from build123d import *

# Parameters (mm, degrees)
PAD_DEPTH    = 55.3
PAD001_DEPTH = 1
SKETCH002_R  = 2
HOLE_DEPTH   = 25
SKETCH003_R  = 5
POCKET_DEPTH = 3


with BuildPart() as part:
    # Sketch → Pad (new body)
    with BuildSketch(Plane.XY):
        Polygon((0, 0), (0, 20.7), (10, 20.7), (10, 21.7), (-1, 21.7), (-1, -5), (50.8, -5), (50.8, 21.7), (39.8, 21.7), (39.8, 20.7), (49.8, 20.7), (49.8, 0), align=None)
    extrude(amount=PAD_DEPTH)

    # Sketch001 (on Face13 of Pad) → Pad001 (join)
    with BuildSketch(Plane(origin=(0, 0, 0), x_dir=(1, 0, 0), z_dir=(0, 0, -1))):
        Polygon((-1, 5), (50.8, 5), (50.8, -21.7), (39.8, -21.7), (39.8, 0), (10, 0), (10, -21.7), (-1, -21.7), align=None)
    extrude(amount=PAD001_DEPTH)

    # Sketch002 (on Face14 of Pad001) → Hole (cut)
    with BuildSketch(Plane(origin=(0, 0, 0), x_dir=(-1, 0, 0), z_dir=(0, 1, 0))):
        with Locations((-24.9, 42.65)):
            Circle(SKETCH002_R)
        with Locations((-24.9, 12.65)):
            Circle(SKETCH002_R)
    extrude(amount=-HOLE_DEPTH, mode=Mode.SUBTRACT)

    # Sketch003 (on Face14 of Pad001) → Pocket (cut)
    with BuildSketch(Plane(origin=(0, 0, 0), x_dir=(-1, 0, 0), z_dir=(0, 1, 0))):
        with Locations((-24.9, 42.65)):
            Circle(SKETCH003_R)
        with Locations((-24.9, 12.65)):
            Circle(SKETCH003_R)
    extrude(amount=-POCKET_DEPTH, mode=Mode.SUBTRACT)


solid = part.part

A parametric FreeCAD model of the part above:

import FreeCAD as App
import Part
import Sketcher

doc = App.newDocument("Part")
body = doc.addObject("PartDesign::Body", "Body")

# Sketch on XY plane
sketch1 = body.newObject("Sketcher::SketchObject", "Sketch")
sketch1.AttachmentSupport = (doc.getObject("XY_Plane"), [""])
sketch1.MapMode = "FlatFace"
sketch1.addGeometry([
    Part.LineSegment(App.Vector(0, 0, 0), App.Vector(0, 20.7, 0)),  # 0
    Part.LineSegment(App.Vector(0, 20.7, 0), App.Vector(10, 20.7, 0)),  # 1
    Part.LineSegment(App.Vector(10, 20.7, 0), App.Vector(10, 21.7, 0)),  # 2
    Part.LineSegment(App.Vector(10, 21.7, 0), App.Vector(-1, 21.7, 0)),  # 3
    Part.LineSegment(App.Vector(-1, 21.7, 0), App.Vector(-1, -5, 0)),  # 4
    Part.LineSegment(App.Vector(-1, -5, 0), App.Vector(50.8, -5, 0)),  # 5
    Part.LineSegment(App.Vector(50.8, -5, 0), App.Vector(50.8, 21.7, 0)),  # 6
    Part.LineSegment(App.Vector(50.8, 21.7, 0), App.Vector(39.8, 21.7, 0)),  # 7
    Part.LineSegment(App.Vector(39.8, 21.7, 0), App.Vector(39.8, 20.7, 0)),  # 8
    Part.LineSegment(App.Vector(39.8, 20.7, 0), App.Vector(49.8, 20.7, 0)),  # 9
    Part.LineSegment(App.Vector(49.8, 20.7, 0), App.Vector(49.8, 0, 0)),  # 10
    Part.LineSegment(App.Vector(49.8, 0, 0), App.Vector(0, 0, 0)),  # 11
], False)
sketch1.addConstraint([
    Sketcher.Constraint("Coincident", 0, 2, 1, 1),
    Sketcher.Constraint("Coincident", 1, 2, 2, 1),
    Sketcher.Constraint("Coincident", 2, 2, 3, 1),
    Sketcher.Constraint("Coincident", 3, 2, 4, 1),
    Sketcher.Constraint("Coincident", 4, 2, 5, 1),
    Sketcher.Constraint("Coincident", 5, 2, 6, 1),
    Sketcher.Constraint("Coincident", 6, 2, 7, 1),
    Sketcher.Constraint("Coincident", 7, 2, 8, 1),
    Sketcher.Constraint("Coincident", 8, 2, 9, 1),
    Sketcher.Constraint("Coincident", 9, 2, 10, 1),
    Sketcher.Constraint("Coincident", 10, 2, 11, 1),
    Sketcher.Constraint("Coincident", 11, 2, 0, 1),
    Sketcher.Constraint("Vertical", 0),
    Sketcher.Constraint("Horizontal", 1),
    Sketcher.Constraint("Vertical", 2),
    Sketcher.Constraint("Horizontal", 3),
    Sketcher.Constraint("Vertical", 4),
    Sketcher.Constraint("Horizontal", 5),
    Sketcher.Constraint("Vertical", 6),
    Sketcher.Constraint("Horizontal", 7),
    Sketcher.Constraint("Vertical", 8),
    Sketcher.Constraint("Horizontal", 9),
    Sketcher.Constraint("Vertical", 10),
    Sketcher.Constraint("Horizontal", 11),
    Sketcher.Constraint("Coincident", 11, 2, -1, 1),
    Sketcher.Constraint("Horizontal", 3, 2, 6, 2),
    Sketcher.Constraint("Horizontal", 1, 2, 8, 2),
    Sketcher.Constraint("Equal", 3, 7),
    Sketcher.Constraint("Equal", 1, 9),
    Sketcher.Constraint("DistanceX", 1, 1, 1, 2, 10.0),
    Sketcher.Constraint("DistanceX", 3, 2, 3, 1, 11.0),
    Sketcher.Constraint("DistanceY", 2, 1, 2, 2, 1.0),
    Sketcher.Constraint("DistanceX", 5, 1, 5, 2, 51.8),
    Sketcher.Constraint("DistanceY", 0, 1, 0, 2, 20.7),
    Sketcher.Constraint("DistanceY", 4, 2, 4, 1, 26.7),
])
pad1 = body.newObject("PartDesign::Pad", "Pad")
pad1.Profile = sketch1
pad1.Length = 55.3

# Sketch on XY plane
sketch2 = body.newObject("Sketcher::SketchObject", "Sketch001")
sketch2.AttachmentSupport = (doc.getObject("XY_Plane"), [""])
sketch2.MapMode = "FlatFace"
sketch2.addGeometry([
    Part.LineSegment(App.Vector(51, -5, 0), App.Vector(-1, -5, 0)),  # 0
    Part.LineSegment(App.Vector(-1, -5, 0), App.Vector(-1, 22, 0)),  # 1
    Part.LineSegment(App.Vector(-1, 22, 0), App.Vector(10, 22, 0)),  # 2
    Part.LineSegment(App.Vector(10, 22, 0), App.Vector(10, 0, 0)),  # 3
    Part.LineSegment(App.Vector(10, 0, 0), App.Vector(40, 0, 0)),  # 4
    Part.LineSegment(App.Vector(40, 0, 0), App.Vector(40, 22, 0)),  # 5
    Part.LineSegment(App.Vector(40, 22, 0), App.Vector(51, 22, 0)),  # 6
    Part.LineSegment(App.Vector(51, 22, 0), App.Vector(51, -5, 0)),  # 7
], False)
sketch2.addConstraint([
    Sketcher.Constraint("Coincident", 0, 2, 1, 1),
    Sketcher.Constraint("Coincident", 1, 2, 2, 1),
    Sketcher.Constraint("Coincident", 2, 2, 3, 1),
    Sketcher.Constraint("Coincident", 3, 2, 4, 1),
    Sketcher.Constraint("Coincident", 4, 2, 5, 1),
    Sketcher.Constraint("Coincident", 5, 2, 6, 1),
    Sketcher.Constraint("Coincident", 6, 2, 7, 1),
    Sketcher.Constraint("Coincident", 7, 2, 0, 1),
    Sketcher.Constraint("Horizontal", 0),
    Sketcher.Constraint("Vertical", 1),
    Sketcher.Constraint("Horizontal", 2),
    Sketcher.Constraint("Vertical", 3),
    Sketcher.Constraint("Horizontal", 4),
    Sketcher.Constraint("Vertical", 5),
    Sketcher.Constraint("Horizontal", 6),
    Sketcher.Constraint("Vertical", 7),
    Sketcher.Constraint("PointOnObject", 3, 2, -1),
    Sketcher.Constraint("Horizontal", 2, 2, 5, 2),
    Sketcher.Constraint("Equal", 2, 6),
    Sketcher.Constraint("DistanceX", 2, 1, 2, 2, 11.0),
    Sketcher.Constraint("DistanceX", 0, 2, 0, 1, 51.8),
    Sketcher.Constraint("DistanceY", 1, 1, 1, 2, 26.7),
    Sketcher.Constraint("DistanceY", 3, 2, 3, 1, 21.7),
    Sketcher.Constraint("DistanceX", 0, 2, -1, 1, 1.0),
])
pad2 = body.newObject("PartDesign::Pad", "Pad001")
pad2.Profile = sketch2
pad2.Length = 1
pad2.Reversed = True

# Sketch on XZ plane
sketch3 = body.newObject("Sketcher::SketchObject", "Sketch002")
sketch3.AttachmentSupport = (doc.getObject("XZ_Plane"), [""])
sketch3.MapMode = "FlatFace"
sketch3.addGeometry([
    Part.Circle(App.Vector(24.9, 42.6, 0), App.Vector(0, 0, 1), 2),
    Part.Circle(App.Vector(24.9, 12.7, 0), App.Vector(0, 0, 1), 2),
], False)
sketch3.addConstraint([
    Sketcher.Constraint("Equal", 0, 1),
    Sketcher.Constraint("Vertical", 0, 3, 1, 3),
    Sketcher.Constraint("Diameter", 0, 4.0),
    Sketcher.Constraint("DistanceY", 1, 3, 0, 3, 30.0),
    Sketcher.Constraint("DistanceX", -1, 1, 0, 3, 24.9),
    Sketcher.Constraint("DistanceY", -1, 1, 0, 3, 42.65),
])
pocket1 = body.newObject("PartDesign::Pocket", "Pocket")
pocket1.Profile = sketch3
pocket1.Length = 25
pocket1.Reversed = True

# Sketch on XZ plane
sketch4 = body.newObject("Sketcher::SketchObject", "Sketch003")
sketch4.AttachmentSupport = (doc.getObject("XZ_Plane"), [""])
sketch4.MapMode = "FlatFace"
sketch4.addGeometry([
    Part.Circle(App.Vector(25, 43, 0), App.Vector(0, 0, 1), 5),
    Part.Circle(App.Vector(25, 13, 0), App.Vector(0, 0, 1), 5),
], False)
sketch4.addConstraint([
    Sketcher.Constraint("Equal", 0, 1),
    Sketcher.Constraint("Vertical", 0, 3, 1, 3),
    Sketcher.Constraint("Diameter", 0, 10.0),
    Sketcher.Constraint("DistanceY", 1, 3, 0, 3, 30.0),
    Sketcher.Constraint("DistanceX", -1, 1, 0, 3, 24.9),
    Sketcher.Constraint("DistanceY", -1, 1, 0, 3, 42.65),
])
pocket2 = body.newObject("PartDesign::Pocket", "Pocket001")
pocket2.Profile = sketch4
pocket2.Length = 3
pocket2.Reversed = True

doc.recompute()
